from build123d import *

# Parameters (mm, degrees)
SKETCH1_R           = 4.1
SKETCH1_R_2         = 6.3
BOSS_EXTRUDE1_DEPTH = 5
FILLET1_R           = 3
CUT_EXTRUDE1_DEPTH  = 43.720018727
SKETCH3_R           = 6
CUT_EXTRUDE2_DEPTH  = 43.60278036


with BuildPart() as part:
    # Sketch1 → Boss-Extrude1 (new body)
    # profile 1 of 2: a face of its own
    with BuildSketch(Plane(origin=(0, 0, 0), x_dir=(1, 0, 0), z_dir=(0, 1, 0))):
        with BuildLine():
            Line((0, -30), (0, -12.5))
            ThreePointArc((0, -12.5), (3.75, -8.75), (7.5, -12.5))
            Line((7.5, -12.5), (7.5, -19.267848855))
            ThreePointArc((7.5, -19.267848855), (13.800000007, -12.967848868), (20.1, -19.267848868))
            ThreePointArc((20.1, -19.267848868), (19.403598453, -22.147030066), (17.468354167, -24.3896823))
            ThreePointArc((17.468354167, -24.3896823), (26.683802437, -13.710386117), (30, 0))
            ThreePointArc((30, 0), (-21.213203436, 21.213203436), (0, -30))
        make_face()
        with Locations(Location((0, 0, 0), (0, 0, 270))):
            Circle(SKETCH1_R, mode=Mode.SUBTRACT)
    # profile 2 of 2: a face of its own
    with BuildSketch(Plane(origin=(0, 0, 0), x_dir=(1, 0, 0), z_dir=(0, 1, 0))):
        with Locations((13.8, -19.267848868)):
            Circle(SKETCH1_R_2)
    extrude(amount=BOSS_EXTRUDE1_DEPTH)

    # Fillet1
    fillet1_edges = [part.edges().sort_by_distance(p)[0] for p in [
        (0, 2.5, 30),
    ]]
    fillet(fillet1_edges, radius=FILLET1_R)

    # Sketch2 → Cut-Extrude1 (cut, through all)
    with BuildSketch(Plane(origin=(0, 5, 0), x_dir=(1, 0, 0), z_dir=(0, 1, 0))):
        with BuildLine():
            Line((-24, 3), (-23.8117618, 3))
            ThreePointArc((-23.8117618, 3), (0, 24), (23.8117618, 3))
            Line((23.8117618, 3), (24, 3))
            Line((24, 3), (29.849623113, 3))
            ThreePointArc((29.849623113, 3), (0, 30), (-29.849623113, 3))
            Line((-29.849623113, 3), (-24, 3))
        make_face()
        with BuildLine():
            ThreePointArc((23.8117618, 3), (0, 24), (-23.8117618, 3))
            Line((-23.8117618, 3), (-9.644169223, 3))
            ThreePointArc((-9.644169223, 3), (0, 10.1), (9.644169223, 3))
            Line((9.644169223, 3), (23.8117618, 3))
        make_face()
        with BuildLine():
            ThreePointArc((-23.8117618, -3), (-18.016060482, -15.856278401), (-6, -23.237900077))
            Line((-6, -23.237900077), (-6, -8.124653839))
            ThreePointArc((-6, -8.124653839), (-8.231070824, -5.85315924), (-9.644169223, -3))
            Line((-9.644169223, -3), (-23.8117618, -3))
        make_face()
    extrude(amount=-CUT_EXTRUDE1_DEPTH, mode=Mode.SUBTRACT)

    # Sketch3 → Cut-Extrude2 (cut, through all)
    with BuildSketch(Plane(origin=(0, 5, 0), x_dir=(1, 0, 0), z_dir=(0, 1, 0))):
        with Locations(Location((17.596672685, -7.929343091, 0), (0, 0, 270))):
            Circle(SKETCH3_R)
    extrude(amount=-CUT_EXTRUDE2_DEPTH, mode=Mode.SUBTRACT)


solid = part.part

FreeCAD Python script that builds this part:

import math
import FreeCAD as App
import Part
import Sketcher
from FreeCAD import Vector
Q = App.Units.Quantity


def edges_at(feature, points):
    """Names of the edges that pass closest to the given points."""
    edges = feature.Shape.Edges
    near = lambda p: min(range(len(edges)), key=lambda i: edges[i].distToShape(Part.Vertex(*p))[0])
    return sorted({f"Edge{near(p) + 1}" for p in points})

doc = App.newDocument("Part")
body = doc.addObject("PartDesign::Body", "Body")

# Sketch on XZ plane
sketch1 = body.newObject("Sketcher::SketchObject", "Sketch")
sketch1.AttachmentSupport = (doc.getObject("XZ_Plane"), [""])
sketch1.MapMode = "FlatFace"
sketch1.addGeometry([
    Part.LineSegment(Vector(0, 30, 0), Vector(0, 12.5, 0)),  # 0
    Part.ArcOfCircle(Part.Circle(Vector(3.8, 12.5, 0), Vector(0, 0, 1), 3.8), math.radians(180), math.radians(360)),  # 1
    Part.LineSegment(Vector(7.5, 12.5, 0), Vector(7.5, 19.3, 0)),  # 2
    Part.ArcOfCircle(Part.Circle(Vector(13.8, 19.3, 0), Vector(0, 0, 1), 6.3), math.radians(54), math.radians(180)),  # 3
    Part.ArcOfCircle(Part.Circle(Vector(0, 0, 0), Vector(0, 0, 1), 30), math.radians(0), math.radians(54)),  # 4
    Part.ArcOfCircle(Part.Circle(Vector(0, 0, 0), Vector(0, 0, 1), 30), math.radians(90), math.radians(360)),  # 5
    Part.Circle(Vector(0, 0, 0), Vector(0, 0, 1), 4.1),  # 6
], False)
sketch1.addConstraint([
    Sketcher.Constraint("Tangent", 0, 2, 1, 1),
    Sketcher.Constraint("Tangent", 1, 2, 2, 1),
    Sketcher.Constraint("Tangent", 2, 2, 3, 2),
    Sketcher.Constraint("Tangent", 3, 1, 4, 2),
    Sketcher.Constraint("Tangent", 4, 1, 5, 2),
    Sketcher.Constraint("Coincident", 5, 1, 0, 1),
    Sketcher.Constraint("Vertical", 0),
    Sketcher.Constraint("Vertical", 2),
    Sketcher.Constraint("Coincident", 4, 3, -1, 1),
    Sketcher.Constraint("Coincident", 6, 3, -1, 1),
    Sketcher.Constraint("Equal", 4, 5),
    Sketcher.Constraint("PointOnObject", 0, 2, -2),
    Sketcher.Constraint("PointOnObject", 4, 1, -1),
    Sketcher.Constraint("Radius", 4, Q("30 mm")),
    Sketcher.Constraint("Diameter", 6, Q("8.2 mm")),
    Sketcher.Constraint("Radius", 3, Q("6.3 mm")),
    Sketcher.Constraint("Radius", 1, Q("3.75 mm")),
    Sketcher.Constraint("DistanceY", 0, 2, 0, 1, Q("17.5 mm")),
])
pad1 = body.newObject("PartDesign::Pad", "Pad")
pad1.Profile = sketch1
pad1.Length = 5
pad1.Reversed = True
doc.recompute()

fillet = body.newObject("PartDesign::Fillet", "Fillet")
fillet.Base = (pad1, edges_at(pad1, [(0, 2.5, 30)]))
fillet.Radius = 3

# Sketch on XZ plane
sketch2 = body.newObject("Sketcher::SketchObject", "Sketch001")
sketch2.AttachmentSupport = (doc.getObject("XZ_Plane"), [""])
sketch2.MapMode = "FlatFace"
sketch2.AttachmentOffset = App.Placement(Vector(0, 0, -5), App.Rotation())
sketch2.addGeometry([
    Part.ArcOfCircle(Part.Circle(Vector(0, 0, 0), Vector(0, 0, 1), 30), math.radians(-174), math.radians(-6)),  # 0
    Part.LineSegment(Vector(-30, -3, 0), Vector(-10, -3, 0)),  # 1
    Part.ArcOfCircle(Part.Circle(Vector(0, 0, 0), Vector(0, 0, 1), 10), math.radians(-163), math.radians(-17)),  # 2
    Part.LineSegment(Vector(10, -3, 0), Vector(30, -3, 0)),  # 3
    Part.ArcOfCircle(Part.Circle(Vector(0, 0, 0), Vector(0, 0, 1), 24), math.radians(104), math.radians(173)),  # 4
    Part.LineSegment(Vector(-6, 23, 0), Vector(-6, 8, 0)),  # 5
    Part.ArcOfCircle(Part.Circle(Vector(0, 0, 0), Vector(0, 0, 1), 10), math.radians(126), math.radians(163)),  # 6
    Part.LineSegment(Vector(-10, 3, 0), Vector(-24, 3, 0)),  # 7
], False)
sketch2.addConstraint([
    Sketcher.Constraint("Coincident", 0, 1, 1, 1),
    Sketcher.Constraint("Coincident", 1, 2, 2, 1),
    Sketcher.Constraint("Coincident", 2, 2, 3, 1),
    Sketcher.Constraint("Coincident", 3, 2, 0, 2),
    Sketcher.Constraint("Coincident", 4, 1, 5, 1),
    Sketcher.Constraint("Coincident", 5, 2, 6, 1),
    Sketcher.Constraint("Coincident", 6, 2, 7, 1),
    Sketcher.Constraint("Coincident", 7, 2, 4, 2),
    Sketcher.Constraint("Horizontal", 1),
    Sketcher.Constraint("Horizontal", 3),
    Sketcher.Constraint("Vertical", 5),
    Sketcher.Constraint("Horizontal", 7),
    Sketcher.Constraint("Coincident", 0, 3, -1, 1),
    Sketcher.Constraint("Coincident", 2, 3, -1, 1),
    Sketcher.Constraint("Coincident", 4, 3, -1, 1),
    Sketcher.Constraint("Coincident", 6, 3, -1, 1),
    Sketcher.Constraint("Equal", 2, 6),
    Sketcher.Constraint("Horizontal", 1, 2, 2, 2),
    Sketcher.Constraint("Vertical", 1, 2, 6, 2),
    Sketcher.Constraint("Radius", 0, Q("30 mm")),
    Sketcher.Constraint("Radius", 4, Q("24 mm")),
    Sketcher.Constraint("Radius", 2, Q("10.1 mm")),
    Sketcher.Constraint("DistanceY", 0, 1, -1, 1, Q("3 mm")),
    Sketcher.Constraint("DistanceX", 4, 1, -1, 1, Q("6 mm")),
])
pocket1 = body.newObject("PartDesign::Pocket", "Pocket")
pocket1.Profile = sketch2
pocket1.Type = "ThroughAll"
pocket1.Reversed = True

# Sketch on XZ plane
sketch3 = body.newObject("Sketcher::SketchObject", "Sketch002")
sketch3.AttachmentSupport = (doc.getObject("XZ_Plane"), [""])
sketch3.MapMode = "FlatFace"
sketch3.AttachmentOffset = App.Placement(Vector(0, 0, -5), App.Rotation())
sketch3.addGeometry(Part.Circle(Vector(18, 8, 0), Vector(0, 0, 1), 6), False)
sketch3.addConstraint([
    Sketcher.Constraint("Diameter", 0, Q("12 mm")),
    Sketcher.Constraint("DistanceX", -1, 1, 0, 3, Q("17.596673 mm")),
    Sketcher.Constraint("DistanceY", -1, 1, 0, 3, Q("7.929343 mm")),
])
pocket2 = body.newObject("PartDesign::Pocket", "Pocket001")
pocket2.Profile = sketch3
pocket2.Type = "ThroughAll"
pocket2.Reversed = True

doc.recompute()
